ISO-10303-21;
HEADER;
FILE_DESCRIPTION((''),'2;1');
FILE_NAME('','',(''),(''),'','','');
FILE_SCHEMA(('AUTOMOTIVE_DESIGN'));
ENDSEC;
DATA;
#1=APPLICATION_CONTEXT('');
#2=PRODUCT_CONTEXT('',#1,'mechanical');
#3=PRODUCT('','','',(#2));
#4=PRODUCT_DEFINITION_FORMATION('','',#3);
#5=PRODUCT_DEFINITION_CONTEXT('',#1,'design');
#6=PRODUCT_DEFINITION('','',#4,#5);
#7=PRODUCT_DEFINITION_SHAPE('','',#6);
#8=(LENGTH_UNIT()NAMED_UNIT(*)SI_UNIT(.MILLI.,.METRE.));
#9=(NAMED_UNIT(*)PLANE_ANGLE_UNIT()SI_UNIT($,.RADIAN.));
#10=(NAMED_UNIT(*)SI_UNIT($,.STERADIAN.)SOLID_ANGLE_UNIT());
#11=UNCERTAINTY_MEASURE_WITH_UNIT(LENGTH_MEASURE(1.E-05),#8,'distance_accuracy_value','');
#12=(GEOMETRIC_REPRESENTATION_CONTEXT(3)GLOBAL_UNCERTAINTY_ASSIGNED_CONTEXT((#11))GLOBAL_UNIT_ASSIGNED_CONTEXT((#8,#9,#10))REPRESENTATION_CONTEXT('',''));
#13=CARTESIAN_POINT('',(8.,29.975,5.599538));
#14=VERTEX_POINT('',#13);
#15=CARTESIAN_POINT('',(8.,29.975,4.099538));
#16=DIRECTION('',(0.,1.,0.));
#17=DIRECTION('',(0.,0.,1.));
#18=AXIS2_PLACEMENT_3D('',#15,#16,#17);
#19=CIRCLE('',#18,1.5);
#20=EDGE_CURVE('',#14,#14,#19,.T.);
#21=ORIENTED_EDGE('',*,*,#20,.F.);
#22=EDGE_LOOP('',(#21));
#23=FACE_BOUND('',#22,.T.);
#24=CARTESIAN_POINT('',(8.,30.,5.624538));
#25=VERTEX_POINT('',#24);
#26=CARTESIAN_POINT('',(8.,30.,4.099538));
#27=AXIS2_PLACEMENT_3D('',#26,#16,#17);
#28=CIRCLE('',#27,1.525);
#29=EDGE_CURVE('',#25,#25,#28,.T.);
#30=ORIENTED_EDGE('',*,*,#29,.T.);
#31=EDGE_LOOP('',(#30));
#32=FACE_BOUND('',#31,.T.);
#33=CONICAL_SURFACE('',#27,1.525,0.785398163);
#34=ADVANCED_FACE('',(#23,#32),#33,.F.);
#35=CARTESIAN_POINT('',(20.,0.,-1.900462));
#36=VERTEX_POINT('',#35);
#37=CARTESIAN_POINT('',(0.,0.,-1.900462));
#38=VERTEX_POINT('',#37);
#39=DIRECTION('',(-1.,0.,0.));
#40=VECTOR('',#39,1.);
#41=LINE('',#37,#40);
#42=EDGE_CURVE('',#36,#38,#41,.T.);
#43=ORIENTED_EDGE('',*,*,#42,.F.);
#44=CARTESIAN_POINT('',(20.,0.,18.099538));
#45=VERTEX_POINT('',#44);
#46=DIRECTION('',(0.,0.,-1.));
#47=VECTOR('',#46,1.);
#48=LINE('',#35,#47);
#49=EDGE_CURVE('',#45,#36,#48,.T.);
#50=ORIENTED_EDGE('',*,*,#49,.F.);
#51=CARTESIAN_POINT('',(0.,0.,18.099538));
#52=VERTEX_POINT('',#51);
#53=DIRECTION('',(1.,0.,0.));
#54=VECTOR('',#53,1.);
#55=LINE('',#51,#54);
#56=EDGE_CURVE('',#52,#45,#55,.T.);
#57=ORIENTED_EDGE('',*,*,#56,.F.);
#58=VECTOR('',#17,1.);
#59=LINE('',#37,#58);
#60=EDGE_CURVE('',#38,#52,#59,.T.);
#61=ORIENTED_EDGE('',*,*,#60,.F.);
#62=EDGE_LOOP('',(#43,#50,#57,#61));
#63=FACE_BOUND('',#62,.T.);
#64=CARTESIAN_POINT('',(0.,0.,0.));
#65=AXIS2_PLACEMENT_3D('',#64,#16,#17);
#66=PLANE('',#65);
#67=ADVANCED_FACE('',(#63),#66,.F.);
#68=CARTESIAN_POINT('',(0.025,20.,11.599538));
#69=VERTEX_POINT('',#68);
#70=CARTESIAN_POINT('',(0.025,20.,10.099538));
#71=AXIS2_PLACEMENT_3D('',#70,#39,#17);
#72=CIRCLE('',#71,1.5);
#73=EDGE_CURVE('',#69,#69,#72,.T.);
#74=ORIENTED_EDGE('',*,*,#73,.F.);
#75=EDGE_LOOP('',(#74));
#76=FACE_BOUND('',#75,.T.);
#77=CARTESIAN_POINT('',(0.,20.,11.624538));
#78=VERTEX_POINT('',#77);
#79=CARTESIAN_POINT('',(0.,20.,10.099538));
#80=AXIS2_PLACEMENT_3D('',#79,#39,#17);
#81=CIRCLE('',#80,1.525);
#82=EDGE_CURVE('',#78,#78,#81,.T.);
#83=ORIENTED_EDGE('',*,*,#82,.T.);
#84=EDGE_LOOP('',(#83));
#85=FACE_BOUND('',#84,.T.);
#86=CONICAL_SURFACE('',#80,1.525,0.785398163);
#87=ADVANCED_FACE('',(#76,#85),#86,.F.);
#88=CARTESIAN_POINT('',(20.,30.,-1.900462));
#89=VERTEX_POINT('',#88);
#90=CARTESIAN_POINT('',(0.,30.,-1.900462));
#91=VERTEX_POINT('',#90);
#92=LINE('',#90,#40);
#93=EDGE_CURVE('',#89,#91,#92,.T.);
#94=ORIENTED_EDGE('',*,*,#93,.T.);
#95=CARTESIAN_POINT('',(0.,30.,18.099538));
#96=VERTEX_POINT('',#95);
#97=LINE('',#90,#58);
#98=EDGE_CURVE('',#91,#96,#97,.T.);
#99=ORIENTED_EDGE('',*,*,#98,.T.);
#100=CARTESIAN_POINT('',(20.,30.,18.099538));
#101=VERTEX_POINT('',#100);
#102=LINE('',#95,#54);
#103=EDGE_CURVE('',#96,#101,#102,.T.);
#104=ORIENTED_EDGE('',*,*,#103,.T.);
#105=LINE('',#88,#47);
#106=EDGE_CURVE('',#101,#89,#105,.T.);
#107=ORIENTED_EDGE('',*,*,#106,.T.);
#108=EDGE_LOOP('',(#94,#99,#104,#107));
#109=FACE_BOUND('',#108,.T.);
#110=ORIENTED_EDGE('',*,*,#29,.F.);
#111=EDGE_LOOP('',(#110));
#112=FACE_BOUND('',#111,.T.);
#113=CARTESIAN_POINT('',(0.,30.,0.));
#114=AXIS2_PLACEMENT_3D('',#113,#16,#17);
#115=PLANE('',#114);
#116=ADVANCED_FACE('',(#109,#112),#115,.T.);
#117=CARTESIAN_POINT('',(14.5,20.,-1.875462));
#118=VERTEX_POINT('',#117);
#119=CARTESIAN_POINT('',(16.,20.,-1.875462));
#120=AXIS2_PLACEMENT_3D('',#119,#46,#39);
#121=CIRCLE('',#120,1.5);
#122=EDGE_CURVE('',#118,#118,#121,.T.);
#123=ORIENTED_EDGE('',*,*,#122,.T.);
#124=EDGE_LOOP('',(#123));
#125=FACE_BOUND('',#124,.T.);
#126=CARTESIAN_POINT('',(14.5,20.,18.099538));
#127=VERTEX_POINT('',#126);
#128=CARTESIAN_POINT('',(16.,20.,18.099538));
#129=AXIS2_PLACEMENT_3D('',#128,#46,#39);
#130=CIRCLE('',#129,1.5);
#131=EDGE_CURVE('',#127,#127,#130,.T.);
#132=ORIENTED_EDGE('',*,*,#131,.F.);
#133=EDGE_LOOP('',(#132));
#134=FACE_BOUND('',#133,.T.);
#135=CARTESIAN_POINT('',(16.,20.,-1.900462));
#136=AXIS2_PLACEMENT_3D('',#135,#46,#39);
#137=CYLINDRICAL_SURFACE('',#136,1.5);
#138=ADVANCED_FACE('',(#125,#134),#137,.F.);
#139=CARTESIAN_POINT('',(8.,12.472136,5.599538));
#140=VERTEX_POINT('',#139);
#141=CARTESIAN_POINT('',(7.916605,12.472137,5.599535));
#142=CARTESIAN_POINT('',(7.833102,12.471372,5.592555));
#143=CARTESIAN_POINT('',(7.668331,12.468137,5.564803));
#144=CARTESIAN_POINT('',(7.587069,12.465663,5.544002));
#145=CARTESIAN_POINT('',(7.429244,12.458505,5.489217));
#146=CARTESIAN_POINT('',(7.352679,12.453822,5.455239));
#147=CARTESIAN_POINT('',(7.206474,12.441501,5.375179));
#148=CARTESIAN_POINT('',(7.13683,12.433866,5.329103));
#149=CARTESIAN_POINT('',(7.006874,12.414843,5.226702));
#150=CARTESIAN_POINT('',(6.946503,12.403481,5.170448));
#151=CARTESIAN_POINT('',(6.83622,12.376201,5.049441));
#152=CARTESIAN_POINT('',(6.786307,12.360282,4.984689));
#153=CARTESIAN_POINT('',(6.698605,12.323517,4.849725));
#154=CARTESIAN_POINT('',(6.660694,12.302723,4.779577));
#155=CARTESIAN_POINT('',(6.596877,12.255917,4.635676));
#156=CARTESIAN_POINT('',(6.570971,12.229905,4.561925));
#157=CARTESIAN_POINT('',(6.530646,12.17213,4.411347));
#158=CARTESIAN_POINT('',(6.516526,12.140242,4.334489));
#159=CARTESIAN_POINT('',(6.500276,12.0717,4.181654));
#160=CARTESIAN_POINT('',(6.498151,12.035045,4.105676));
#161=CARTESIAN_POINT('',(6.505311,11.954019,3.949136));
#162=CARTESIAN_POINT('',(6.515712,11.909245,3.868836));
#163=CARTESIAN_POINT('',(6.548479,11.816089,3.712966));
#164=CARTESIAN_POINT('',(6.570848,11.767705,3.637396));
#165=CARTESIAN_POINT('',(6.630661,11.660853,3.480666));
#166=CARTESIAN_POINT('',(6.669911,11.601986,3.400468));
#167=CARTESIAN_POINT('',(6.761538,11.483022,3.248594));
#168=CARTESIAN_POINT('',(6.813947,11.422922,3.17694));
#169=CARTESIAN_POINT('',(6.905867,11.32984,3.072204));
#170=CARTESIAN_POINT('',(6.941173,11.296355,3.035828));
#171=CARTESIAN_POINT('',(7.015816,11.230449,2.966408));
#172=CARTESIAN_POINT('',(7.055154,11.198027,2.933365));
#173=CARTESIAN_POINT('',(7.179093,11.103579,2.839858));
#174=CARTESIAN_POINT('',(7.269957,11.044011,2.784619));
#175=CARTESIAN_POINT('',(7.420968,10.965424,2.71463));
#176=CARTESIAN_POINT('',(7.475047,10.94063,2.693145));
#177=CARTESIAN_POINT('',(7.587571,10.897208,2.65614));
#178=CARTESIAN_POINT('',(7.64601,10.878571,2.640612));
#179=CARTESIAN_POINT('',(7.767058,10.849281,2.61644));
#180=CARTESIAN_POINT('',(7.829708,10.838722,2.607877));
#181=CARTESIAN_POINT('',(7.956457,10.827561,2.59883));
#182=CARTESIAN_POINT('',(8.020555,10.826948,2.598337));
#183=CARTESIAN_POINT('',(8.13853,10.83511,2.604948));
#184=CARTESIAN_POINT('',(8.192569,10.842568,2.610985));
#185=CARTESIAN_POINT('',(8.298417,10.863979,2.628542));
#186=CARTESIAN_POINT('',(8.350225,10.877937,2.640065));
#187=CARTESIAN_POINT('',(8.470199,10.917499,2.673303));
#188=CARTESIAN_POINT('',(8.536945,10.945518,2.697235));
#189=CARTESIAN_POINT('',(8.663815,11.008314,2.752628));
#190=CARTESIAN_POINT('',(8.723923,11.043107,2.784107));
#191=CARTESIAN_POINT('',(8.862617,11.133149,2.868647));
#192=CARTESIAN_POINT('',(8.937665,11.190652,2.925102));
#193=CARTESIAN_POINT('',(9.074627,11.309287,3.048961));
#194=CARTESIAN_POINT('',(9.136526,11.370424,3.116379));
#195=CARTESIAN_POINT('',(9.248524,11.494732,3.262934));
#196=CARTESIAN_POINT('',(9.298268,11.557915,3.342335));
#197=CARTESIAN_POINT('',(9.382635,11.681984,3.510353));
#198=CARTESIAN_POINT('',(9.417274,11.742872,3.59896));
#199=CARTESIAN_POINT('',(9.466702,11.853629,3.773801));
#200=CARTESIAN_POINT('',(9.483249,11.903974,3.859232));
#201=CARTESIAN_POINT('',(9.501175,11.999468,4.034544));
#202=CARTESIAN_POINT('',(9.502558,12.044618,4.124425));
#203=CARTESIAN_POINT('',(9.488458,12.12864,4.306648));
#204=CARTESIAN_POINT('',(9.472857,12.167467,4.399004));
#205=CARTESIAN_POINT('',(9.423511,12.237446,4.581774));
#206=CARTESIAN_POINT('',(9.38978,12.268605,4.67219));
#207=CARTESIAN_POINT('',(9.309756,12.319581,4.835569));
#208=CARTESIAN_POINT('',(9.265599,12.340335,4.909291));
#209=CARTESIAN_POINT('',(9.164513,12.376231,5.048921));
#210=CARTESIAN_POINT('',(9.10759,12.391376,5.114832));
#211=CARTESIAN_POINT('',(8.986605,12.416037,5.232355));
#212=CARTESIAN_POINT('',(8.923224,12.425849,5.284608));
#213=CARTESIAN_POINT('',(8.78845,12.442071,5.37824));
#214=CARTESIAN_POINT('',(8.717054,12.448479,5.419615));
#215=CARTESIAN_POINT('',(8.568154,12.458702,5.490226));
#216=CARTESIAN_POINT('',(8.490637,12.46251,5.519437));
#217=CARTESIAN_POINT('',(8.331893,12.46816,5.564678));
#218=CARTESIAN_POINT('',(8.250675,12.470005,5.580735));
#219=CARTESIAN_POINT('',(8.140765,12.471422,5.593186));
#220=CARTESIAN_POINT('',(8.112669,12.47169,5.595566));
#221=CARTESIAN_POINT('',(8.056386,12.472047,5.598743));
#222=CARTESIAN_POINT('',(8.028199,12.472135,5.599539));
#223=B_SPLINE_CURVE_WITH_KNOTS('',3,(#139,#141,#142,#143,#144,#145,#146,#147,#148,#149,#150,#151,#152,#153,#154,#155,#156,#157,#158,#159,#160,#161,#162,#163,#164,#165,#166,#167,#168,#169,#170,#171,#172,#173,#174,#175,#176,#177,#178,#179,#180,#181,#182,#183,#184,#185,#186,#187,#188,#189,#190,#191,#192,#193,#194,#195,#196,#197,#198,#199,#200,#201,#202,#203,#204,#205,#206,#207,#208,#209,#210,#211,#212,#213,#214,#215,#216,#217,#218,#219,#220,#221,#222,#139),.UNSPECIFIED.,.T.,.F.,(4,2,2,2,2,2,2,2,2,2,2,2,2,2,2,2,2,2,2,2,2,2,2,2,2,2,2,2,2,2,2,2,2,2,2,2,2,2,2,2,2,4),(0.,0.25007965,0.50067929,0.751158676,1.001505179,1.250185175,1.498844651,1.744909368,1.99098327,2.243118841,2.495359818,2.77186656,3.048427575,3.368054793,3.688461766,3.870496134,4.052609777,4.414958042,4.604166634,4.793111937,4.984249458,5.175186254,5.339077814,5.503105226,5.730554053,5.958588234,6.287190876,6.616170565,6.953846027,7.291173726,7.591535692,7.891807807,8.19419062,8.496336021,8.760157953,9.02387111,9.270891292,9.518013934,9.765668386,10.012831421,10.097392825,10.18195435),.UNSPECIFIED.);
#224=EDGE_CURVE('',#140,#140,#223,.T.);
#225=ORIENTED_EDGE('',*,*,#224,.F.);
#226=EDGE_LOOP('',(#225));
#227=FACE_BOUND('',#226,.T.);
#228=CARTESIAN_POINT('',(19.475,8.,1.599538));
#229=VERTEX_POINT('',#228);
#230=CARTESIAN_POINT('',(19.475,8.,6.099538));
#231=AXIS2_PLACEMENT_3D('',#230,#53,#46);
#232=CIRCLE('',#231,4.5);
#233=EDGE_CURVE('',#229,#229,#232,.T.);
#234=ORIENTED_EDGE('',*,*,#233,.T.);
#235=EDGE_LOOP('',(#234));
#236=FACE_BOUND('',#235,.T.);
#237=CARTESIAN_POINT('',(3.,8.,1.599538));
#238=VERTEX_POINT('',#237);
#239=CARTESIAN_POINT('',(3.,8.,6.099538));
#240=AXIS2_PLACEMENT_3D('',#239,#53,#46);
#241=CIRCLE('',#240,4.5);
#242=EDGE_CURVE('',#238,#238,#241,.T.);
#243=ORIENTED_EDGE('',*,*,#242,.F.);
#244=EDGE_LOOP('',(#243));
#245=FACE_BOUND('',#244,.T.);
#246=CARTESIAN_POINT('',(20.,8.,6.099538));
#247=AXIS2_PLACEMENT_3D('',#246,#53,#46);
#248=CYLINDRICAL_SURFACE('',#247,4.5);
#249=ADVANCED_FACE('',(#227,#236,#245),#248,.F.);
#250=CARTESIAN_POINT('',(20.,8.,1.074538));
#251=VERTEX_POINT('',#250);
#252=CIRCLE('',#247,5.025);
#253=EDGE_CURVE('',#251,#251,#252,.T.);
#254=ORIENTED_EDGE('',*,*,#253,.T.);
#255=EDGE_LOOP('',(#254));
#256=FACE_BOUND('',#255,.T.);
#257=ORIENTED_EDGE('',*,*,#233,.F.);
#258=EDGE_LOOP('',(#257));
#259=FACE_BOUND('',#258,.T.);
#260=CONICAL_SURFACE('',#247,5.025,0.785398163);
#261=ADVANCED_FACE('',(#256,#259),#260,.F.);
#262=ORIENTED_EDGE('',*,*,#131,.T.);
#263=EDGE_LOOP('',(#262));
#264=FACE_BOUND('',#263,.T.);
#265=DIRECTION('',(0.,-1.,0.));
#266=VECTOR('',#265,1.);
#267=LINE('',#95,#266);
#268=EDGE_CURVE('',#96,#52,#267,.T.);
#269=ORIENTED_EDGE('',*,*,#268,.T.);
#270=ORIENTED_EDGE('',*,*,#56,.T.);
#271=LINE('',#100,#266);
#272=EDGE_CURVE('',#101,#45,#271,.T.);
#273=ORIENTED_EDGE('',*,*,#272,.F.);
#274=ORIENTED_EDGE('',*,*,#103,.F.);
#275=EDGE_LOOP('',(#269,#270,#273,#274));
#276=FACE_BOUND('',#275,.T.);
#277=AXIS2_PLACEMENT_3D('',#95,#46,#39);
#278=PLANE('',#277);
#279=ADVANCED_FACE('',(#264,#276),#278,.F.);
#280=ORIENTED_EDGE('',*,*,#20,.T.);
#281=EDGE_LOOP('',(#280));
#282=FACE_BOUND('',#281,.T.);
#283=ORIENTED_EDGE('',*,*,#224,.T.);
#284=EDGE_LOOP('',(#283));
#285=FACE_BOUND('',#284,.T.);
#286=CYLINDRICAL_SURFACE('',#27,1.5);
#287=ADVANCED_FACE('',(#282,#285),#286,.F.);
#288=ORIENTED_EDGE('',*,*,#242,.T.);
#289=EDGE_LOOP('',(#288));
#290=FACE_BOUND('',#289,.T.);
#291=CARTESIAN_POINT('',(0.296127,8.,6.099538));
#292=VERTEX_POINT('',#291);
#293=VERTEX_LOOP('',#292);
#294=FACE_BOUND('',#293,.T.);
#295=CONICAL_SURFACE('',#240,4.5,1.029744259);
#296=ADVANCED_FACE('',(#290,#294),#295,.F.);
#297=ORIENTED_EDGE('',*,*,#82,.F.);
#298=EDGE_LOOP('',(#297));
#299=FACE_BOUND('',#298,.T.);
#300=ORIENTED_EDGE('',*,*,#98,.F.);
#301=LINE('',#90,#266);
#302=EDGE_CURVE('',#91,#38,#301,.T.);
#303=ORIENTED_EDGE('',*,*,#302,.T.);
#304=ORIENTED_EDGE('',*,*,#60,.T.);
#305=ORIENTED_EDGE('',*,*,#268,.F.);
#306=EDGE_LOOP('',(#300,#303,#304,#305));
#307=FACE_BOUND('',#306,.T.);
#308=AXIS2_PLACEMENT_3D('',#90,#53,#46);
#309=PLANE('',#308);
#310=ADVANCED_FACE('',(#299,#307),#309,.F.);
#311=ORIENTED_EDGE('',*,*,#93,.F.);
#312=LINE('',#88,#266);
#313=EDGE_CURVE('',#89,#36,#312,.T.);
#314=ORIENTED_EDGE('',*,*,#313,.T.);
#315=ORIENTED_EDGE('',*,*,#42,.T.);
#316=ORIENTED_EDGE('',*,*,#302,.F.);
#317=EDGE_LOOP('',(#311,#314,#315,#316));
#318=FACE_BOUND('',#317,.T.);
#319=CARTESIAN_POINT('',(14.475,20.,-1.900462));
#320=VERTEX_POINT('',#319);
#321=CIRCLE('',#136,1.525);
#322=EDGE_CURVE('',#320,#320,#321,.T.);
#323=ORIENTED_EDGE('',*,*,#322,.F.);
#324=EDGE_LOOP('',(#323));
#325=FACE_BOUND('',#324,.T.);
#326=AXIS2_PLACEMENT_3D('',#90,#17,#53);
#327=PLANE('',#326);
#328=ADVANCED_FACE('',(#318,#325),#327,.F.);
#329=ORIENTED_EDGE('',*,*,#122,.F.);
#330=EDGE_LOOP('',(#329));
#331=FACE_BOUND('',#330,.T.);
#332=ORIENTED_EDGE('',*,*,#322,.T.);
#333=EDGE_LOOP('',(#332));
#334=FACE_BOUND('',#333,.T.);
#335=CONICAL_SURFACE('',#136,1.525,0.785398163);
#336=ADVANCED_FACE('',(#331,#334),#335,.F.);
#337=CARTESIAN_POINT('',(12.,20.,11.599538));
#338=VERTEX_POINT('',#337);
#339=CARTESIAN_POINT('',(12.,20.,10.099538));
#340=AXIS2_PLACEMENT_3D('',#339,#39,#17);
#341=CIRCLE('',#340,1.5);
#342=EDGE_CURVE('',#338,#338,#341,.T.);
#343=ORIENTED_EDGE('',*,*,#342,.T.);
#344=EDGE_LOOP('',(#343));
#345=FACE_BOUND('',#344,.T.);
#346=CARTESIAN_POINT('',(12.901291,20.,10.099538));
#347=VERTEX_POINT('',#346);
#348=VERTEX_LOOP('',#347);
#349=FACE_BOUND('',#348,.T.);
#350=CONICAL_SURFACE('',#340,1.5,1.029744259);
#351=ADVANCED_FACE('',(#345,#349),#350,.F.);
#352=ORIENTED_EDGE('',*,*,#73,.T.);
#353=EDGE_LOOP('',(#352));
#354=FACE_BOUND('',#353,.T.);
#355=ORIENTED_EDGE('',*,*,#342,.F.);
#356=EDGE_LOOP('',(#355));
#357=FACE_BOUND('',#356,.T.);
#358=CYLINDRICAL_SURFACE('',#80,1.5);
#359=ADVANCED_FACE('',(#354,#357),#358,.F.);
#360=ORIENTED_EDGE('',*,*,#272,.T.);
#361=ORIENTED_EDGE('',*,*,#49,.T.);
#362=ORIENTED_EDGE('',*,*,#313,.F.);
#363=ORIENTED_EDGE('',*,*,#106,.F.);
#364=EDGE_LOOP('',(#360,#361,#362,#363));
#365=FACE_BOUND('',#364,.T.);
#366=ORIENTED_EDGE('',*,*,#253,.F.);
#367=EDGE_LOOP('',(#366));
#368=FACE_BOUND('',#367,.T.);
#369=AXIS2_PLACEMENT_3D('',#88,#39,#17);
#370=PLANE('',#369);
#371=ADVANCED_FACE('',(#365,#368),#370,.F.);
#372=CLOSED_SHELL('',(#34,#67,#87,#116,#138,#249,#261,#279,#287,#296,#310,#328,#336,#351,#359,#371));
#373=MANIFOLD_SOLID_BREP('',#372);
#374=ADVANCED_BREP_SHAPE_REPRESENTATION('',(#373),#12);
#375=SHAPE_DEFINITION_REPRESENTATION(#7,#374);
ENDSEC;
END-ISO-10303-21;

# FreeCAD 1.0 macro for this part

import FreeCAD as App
import Part
import Sketcher
from FreeCAD import Vector


def add_polygon(sketch, points):
    """Adds a closed chain of lines whose ends are joined by coincident constraints."""
    first, n = sketch.GeometryCount, len(points)
    for a, b in zip(points, points[1:] + points[:1]):
        sketch.addGeometry(Part.LineSegment(App.Vector(*a, 0), App.Vector(*b, 0)), False)
    for i in range(n):
        sketch.addConstraint(Sketcher.Constraint("Coincident", first + i, 2, first + (i + 1) % n, 1))

doc = App.newDocument("Part")
body = doc.addObject("PartDesign::Body", "Body")

# Sketch on XZ plane
sketch1 = doc.addObject("Sketcher::SketchObject", "Sketch")
body.addObject(sketch1)
sketch1.AttachmentSupport = (doc.XZ_Plane, [""])
sketch1.MapMode = "FlatFace"
add_polygon(sketch1, [(0, -1.900462), (0, 18.099538), (20, 18.099538), (20, -1.900462)])  # lines 0-3
sketch1.addConstraint(Sketcher.Constraint("Vertical", 0))
sketch1.addConstraint(Sketcher.Constraint("Horizontal", 1))
sketch1.addConstraint(Sketcher.Constraint("Vertical", 2))
sketch1.addConstraint(Sketcher.Constraint("Horizontal", 3))
sketch1.addConstraint(Sketcher.Constraint("PointOnObject", 0, 2, -2))
sketch1.addConstraint(Sketcher.Constraint("Equal", 3, 0))
sketch1.addConstraint(Sketcher.Constraint("DistanceX", 1, 1, 1, 2, 20.0))
sketch1.addConstraint(Sketcher.Constraint("DistanceY", -1, 1, 0, 2, 18.099538))
pad1 = doc.addObject("PartDesign::Pad", "Pad")
body.addObject(pad1)
pad1.Profile = sketch1
pad1.Length = 30
pad1.Reversed = True

# Sketch on XY plane
sketch2 = doc.addObject("Sketcher::SketchObject", "Sketch001")
body.addObject(sketch2)
sketch2.AttachmentSupport = (doc.XY_Plane, [""])
sketch2.MapMode = "FlatFace"
sketch2.AttachmentOffset = App.Placement(Vector(0, 0, -1.900462), App.Rotation())
sketch2.addGeometry(Part.Circle(Vector(16, 20, 0), Vector(0, 0, 1), 1.5), False)
sketch2.addConstraint(Sketcher.Constraint("Diameter", 0, 3.0))
sketch2.addConstraint(Sketcher.Constraint("DistanceX", -1, 1, 0, 3, 16.0))
sketch2.addConstraint(Sketcher.Constraint("DistanceY", -1, 1, 0, 3, 20.0))
doc.recompute()
hole = doc.addObject("PartDesign::Hole", "Hole")
body.addObject(hole)
hole.Profile = sketch2
hole.ThreadType = "None"
hole.Diameter = 3
hole.DepthType = "Dimension"
hole.Depth = 20
hole.DrillPoint = "Angled"
hole.DrillPointAngle = 118
hole.HoleCutType = "Countersink"
hole.HoleCutDiameter = 3.05
hole.HoleCutCountersinkAngle = 90
hole.Reversed = True

# Sketch on YZ plane
sketch3 = doc.addObject("Sketcher::SketchObject", "Sketch002")
body.addObject(sketch3)
sketch3.AttachmentSupport = (doc.YZ_Plane, [""])
sketch3.MapMode = "FlatFace"
sketch3.addGeometry(Part.Circle(Vector(20, 10.099538, 0), Vector(0, 0, 1), 1.5), False)
sketch3.addConstraint(Sketcher.Constraint("Diameter", 0, 3.0))
sketch3.addConstraint(Sketcher.Constraint("DistanceX", -1, 1, 0, 3, 20.0))
sketch3.addConstraint(Sketcher.Constraint("DistanceY", -1, 1, 0, 3, 10.099538))
doc.recompute()
hole2 = doc.addObject("PartDesign::Hole", "Hole001")
body.addObject(hole2)
hole2.Profile = sketch3
hole2.ThreadType = "None"
hole2.Diameter = 3
hole2.DepthType = "Dimension"
hole2.Depth = 12
hole2.DrillPoint = "Angled"
hole2.DrillPointAngle = 118
hole2.HoleCutType = "Countersink"
hole2.HoleCutDiameter = 3.05
hole2.HoleCutCountersinkAngle = 90
hole2.Reversed = True

# Sketch on XZ plane
sketch4 = doc.addObject("Sketcher::SketchObject", "Sketch003")
body.addObject(sketch4)
sketch4.AttachmentSupport = (doc.XZ_Plane, [""])
sketch4.MapMode = "FlatFace"
sketch4.AttachmentOffset = App.Placement(Vector(0, 0, -30), App.Rotation())
sketch4.addGeometry(Part.Circle(Vector(8, 4.099538, 0), Vector(0, 0, 1), 1.5), False)
sketch4.addConstraint(Sketcher.Constraint("Diameter", 0, 3.0))
sketch4.addConstraint(Sketcher.Constraint("DistanceX", -1, 1, 0, 3, 8.0))
sketch4.addConstraint(Sketcher.Constraint("DistanceY", -1, 1, 0, 3, 4.099538))
doc.recompute()
hole3 = doc.addObject("PartDesign::Hole", "Hole002")
body.addObject(hole3)
hole3.Profile = sketch4
hole3.ThreadType = "None"
hole3.Diameter = 3
hole3.DepthType = "Dimension"
hole3.Depth = 20
hole3.DrillPoint = "Angled"
hole3.DrillPointAngle = 118
hole3.HoleCutType = "Countersink"
hole3.HoleCutDiameter = 3.05
hole3.HoleCutCountersinkAngle = 90
hole3.Reversed = True

# Sketch on YZ plane
sketch5 = doc.addObject("Sketcher::SketchObject", "Sketch004")
body.addObject(sketch5)
sketch5.AttachmentSupport = (doc.YZ_Plane, [""])
sketch5.MapMode = "FlatFace"
sketch5.AttachmentOffset = App.Placement(Vector(0, 0, 20), App.Rotation())
sketch5.addGeometry(Part.Circle(Vector(8, 6.099538, 0), Vector(0, 0, 1), 4.5), False)
sketch5.addConstraint(Sketcher.Constraint("Diameter", 0, 9.0))
sketch5.addConstraint(Sketcher.Constraint("DistanceX", -1, 1, 0, 3, 8.0))
sketch5.addConstraint(Sketcher.Constraint("DistanceY", -1, 1, 0, 3, 6.099538))
doc.recompute()
hole4 = doc.addObject("PartDesign::Hole", "Hole003")
body.addObject(hole4)
hole4.Profile = sketch5
hole4.ThreadType = "None"
hole4.Diameter = 9
hole4.DepthType = "Dimension"
hole4.Depth = 17
hole4.DrillPoint = "Angled"
hole4.DrillPointAngle = 118
hole4.HoleCutType = "Countersink"
hole4.HoleCutDiameter = 10.05
hole4.HoleCutCountersinkAngle = 90

doc.recompute()
